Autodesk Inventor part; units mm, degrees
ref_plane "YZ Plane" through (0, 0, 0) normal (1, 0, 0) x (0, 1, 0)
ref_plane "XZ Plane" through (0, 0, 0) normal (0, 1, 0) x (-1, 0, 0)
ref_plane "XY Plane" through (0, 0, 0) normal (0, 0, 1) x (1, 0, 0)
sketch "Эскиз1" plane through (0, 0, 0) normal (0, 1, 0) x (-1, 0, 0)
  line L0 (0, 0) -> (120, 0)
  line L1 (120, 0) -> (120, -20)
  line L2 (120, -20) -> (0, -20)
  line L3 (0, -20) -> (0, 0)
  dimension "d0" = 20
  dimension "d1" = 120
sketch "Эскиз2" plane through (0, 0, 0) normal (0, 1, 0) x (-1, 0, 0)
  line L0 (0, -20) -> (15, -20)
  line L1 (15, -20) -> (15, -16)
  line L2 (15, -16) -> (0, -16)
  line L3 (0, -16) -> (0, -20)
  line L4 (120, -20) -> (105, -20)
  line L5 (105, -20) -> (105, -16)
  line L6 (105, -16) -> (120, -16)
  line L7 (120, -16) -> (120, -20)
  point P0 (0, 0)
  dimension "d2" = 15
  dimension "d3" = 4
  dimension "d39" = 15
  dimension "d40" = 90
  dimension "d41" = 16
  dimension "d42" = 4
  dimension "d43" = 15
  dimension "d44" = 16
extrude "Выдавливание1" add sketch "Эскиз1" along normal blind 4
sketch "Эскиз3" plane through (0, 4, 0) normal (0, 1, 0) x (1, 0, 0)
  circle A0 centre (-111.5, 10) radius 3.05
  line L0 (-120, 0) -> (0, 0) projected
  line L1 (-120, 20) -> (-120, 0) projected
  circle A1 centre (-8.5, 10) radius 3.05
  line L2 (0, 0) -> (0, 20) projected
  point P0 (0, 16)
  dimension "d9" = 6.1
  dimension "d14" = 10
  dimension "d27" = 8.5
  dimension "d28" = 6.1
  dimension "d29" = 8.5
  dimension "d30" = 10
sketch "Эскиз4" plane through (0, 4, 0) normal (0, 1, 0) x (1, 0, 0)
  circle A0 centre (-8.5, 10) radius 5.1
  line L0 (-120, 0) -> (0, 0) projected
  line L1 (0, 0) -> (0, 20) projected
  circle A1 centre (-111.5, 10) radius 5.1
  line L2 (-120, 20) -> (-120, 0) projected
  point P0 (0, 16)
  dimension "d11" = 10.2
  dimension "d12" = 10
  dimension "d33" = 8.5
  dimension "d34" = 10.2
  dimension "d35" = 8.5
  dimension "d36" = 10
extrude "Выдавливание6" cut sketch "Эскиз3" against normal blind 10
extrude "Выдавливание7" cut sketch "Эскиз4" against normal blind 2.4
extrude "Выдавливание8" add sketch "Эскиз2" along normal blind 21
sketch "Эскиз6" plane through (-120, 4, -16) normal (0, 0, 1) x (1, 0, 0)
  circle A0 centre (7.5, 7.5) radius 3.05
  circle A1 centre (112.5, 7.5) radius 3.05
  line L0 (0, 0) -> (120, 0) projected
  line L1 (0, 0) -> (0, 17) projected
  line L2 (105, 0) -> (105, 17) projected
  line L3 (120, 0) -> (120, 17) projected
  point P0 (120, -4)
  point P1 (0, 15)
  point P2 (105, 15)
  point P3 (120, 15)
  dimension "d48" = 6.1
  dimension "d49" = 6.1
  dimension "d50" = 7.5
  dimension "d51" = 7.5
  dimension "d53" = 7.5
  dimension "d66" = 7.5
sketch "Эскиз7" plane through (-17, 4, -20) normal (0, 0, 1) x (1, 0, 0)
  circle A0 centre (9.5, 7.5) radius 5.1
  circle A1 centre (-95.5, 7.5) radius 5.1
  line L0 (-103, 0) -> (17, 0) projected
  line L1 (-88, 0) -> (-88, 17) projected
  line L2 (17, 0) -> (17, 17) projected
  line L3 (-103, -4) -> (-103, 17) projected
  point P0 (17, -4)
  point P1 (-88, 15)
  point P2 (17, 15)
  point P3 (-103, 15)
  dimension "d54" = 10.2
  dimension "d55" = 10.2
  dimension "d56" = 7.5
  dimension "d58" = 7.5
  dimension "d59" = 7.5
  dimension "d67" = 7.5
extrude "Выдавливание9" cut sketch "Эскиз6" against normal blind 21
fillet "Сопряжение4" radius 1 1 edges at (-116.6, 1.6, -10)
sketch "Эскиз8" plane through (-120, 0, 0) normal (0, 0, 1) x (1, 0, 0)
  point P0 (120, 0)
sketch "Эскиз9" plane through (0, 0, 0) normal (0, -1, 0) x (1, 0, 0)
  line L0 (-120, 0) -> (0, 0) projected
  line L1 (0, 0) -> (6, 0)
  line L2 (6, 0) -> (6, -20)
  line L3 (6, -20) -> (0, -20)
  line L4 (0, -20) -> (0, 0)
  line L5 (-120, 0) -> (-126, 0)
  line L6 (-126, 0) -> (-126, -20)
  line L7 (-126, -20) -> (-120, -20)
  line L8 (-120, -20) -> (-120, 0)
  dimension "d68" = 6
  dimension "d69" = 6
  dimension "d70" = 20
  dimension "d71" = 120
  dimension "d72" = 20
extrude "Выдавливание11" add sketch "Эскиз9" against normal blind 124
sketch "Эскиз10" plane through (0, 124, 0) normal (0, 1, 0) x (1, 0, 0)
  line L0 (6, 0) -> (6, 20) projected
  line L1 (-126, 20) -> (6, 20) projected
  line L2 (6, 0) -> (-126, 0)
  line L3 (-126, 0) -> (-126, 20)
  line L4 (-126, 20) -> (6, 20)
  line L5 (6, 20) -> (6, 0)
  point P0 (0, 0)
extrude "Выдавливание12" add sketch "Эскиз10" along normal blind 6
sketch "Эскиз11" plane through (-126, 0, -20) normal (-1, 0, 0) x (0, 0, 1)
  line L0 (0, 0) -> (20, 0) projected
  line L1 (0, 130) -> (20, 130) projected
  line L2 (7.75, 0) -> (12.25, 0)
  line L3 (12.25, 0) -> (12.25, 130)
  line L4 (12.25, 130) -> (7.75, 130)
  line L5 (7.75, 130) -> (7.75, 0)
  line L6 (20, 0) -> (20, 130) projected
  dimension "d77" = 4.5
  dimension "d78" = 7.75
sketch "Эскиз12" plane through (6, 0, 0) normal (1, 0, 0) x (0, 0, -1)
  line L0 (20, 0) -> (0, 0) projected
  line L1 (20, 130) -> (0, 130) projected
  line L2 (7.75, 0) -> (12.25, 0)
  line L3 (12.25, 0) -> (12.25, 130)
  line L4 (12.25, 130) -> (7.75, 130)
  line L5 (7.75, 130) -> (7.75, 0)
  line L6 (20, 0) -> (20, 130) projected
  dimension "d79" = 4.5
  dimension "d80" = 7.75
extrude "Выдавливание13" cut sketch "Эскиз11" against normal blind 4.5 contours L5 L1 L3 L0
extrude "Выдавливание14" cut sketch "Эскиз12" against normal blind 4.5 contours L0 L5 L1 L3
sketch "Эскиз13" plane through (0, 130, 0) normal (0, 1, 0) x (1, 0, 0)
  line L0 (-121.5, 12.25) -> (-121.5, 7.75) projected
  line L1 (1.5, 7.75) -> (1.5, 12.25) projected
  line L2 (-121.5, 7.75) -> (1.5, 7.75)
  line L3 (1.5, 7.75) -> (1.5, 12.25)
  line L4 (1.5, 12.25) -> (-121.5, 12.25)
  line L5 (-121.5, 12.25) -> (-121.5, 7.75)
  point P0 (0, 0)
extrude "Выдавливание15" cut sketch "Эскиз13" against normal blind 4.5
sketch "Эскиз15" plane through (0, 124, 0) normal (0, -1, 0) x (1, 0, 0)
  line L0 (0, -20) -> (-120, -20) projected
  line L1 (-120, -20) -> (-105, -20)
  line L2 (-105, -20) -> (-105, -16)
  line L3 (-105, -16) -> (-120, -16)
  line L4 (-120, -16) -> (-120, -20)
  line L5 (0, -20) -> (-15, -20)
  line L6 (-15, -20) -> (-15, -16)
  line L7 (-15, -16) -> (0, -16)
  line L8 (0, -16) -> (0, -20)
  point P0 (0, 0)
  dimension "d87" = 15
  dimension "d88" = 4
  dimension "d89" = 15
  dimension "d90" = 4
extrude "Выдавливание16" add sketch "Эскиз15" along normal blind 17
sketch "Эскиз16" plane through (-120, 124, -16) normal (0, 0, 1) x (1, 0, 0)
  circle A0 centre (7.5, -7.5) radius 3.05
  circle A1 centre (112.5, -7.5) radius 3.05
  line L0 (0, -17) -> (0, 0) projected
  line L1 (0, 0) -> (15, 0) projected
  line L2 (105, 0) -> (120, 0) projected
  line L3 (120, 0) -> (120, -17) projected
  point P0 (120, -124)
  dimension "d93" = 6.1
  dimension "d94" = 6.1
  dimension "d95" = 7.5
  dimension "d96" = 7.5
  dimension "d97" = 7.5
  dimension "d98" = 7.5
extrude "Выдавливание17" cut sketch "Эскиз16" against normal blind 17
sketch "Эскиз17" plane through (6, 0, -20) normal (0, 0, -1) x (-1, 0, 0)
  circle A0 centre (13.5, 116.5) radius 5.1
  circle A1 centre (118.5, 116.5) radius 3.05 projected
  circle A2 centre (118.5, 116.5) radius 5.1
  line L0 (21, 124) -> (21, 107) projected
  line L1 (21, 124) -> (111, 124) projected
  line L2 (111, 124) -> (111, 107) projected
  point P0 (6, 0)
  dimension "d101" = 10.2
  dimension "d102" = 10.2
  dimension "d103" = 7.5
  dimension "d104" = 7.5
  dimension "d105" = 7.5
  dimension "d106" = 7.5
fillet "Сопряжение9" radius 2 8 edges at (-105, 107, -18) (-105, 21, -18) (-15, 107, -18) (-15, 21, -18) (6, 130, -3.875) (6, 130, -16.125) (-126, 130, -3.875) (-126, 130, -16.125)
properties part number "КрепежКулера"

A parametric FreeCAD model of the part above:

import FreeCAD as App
import Part
import Sketcher

V = App.Vector
Q = App.Units.Quantity


def edges_at(feature, points):
    """Names of the edges that pass closest to the given points."""
    edges = feature.Shape.Edges
    near = lambda p: min(range(len(edges)), key=lambda i: edges[i].distToShape(Part.Vertex(*p))[0])
    return sorted({f"Edge{near(p) + 1}" for p in points})


def add_polygon(sketch, points):
    """Adds a closed chain of lines whose ends are joined by coincident constraints."""
    first, n = sketch.GeometryCount, len(points)
    for a, b in zip(points, points[1:] + points[:1]):
        sketch.addGeometry(Part.LineSegment(App.Vector(*a, 0), App.Vector(*b, 0)), False)
    for i in range(n):
        sketch.addConstraint(Sketcher.Constraint("Coincident", first + i, 2, first + (i + 1) % n, 1))

doc = App.newDocument("Part")
body = doc.addObject("PartDesign::Body", "Body")

# Sketch on XZ plane
sketch1 = doc.addObject("Sketcher::SketchObject", "Sketch")
body.addObject(sketch1)
sketch1.AttachmentSupport = (doc.XZ_Plane, [""])
sketch1.MapMode = "FlatFace"
add_polygon(sketch1, [(-120, 0), (0, 0), (0, -20), (-120, -20)])  # lines 0-3
sketch1.addConstraint([
    Sketcher.Constraint("Horizontal", 0),
    Sketcher.Constraint("Vertical", 1),
    Sketcher.Constraint("Horizontal", 2),
    Sketcher.Constraint("Vertical", 3),
    Sketcher.Constraint("Coincident", 0, 2, -1, 1),
    Sketcher.Constraint("DistanceX", 0, 1, 0, 2, Q("120 mm")),
    Sketcher.Constraint("DistanceY", 1, 2, 1, 1, Q("20 mm")),
])
pad1 = doc.addObject("PartDesign::Pad", "Pad")
body.addObject(pad1)
pad1.Profile = sketch1
pad1.Length = 4
pad1.Reversed = True

# Sketch on XZ plane
sketch2 = doc.addObject("Sketcher::SketchObject", "Sketch001")
body.addObject(sketch2)
sketch2.AttachmentSupport = (doc.XZ_Plane, [""])
sketch2.MapMode = "FlatFace"
sketch2.AttachmentOffset = App.Placement(V(0, 0, -4), App.Rotation())
sketch2.addGeometry([
    Part.Circle(V(-111.5, -10, 0), V(0, 0, 1), 3.05),
    Part.Circle(V(-8.5, -10, 0), V(0, 0, 1), 3.05),
], False)
sketch2.addConstraint([
    Sketcher.Constraint("Equal", 0, 1),
    Sketcher.Constraint("Horizontal", 0, 3, 1, 3),
    Sketcher.Constraint("Diameter", 0, Q("6.1 mm")),
    Sketcher.Constraint("DistanceY", 0, 3, -1, 1, Q("10 mm")),
    Sketcher.Constraint("DistanceX", 1, 3, -1, 1, Q("8.5 mm")),
    Sketcher.Constraint("DistanceX", 0, 3, 1, 3, Q("103 mm")),
])
pocket1 = doc.addObject("PartDesign::Pocket", "Pocket")
body.addObject(pocket1)
pocket1.Profile = sketch2
pocket1.Length = 10
pocket1.Reversed = True

# Sketch on XZ plane
sketch3 = doc.addObject("Sketcher::SketchObject", "Sketch002")
body.addObject(sketch3)
sketch3.AttachmentSupport = (doc.XZ_Plane, [""])
sketch3.MapMode = "FlatFace"
sketch3.AttachmentOffset = App.Placement(V(0, 0, -4), App.Rotation())
sketch3.addGeometry([
    Part.Circle(V(-8.5, -10, 0), V(0, 0, 1), 5.1),
    Part.Circle(V(-111.5, -10, 0), V(0, 0, 1), 5.1),
], False)
sketch3.addConstraint([
    Sketcher.Constraint("Equal", 0, 1),
    Sketcher.Constraint("Horizontal", 0, 3, 1, 3),
    Sketcher.Constraint("Diameter", 0, Q("10.2 mm")),
    Sketcher.Constraint("DistanceY", 0, 3, -1, 1, Q("10 mm")),
    Sketcher.Constraint("DistanceX", 0, 3, -1, 1, Q("8.5 mm")),
    Sketcher.Constraint("DistanceX", 1, 3, 0, 3, Q("103 mm")),
])
pocket2 = doc.addObject("PartDesign::Pocket", "Pocket001")
body.addObject(pocket2)
pocket2.Profile = sketch3
pocket2.Length = 2.4
pocket2.Reversed = True

# Sketch on XZ plane
sketch4 = doc.addObject("Sketcher::SketchObject", "Sketch003")
body.addObject(sketch4)
sketch4.AttachmentSupport = (doc.XZ_Plane, [""])
sketch4.MapMode = "FlatFace"
add_polygon(sketch4, [(0, -16), (0, -20), (-15, -20), (-15, -16)])  # lines 0-3
add_polygon(sketch4, [(-105, -20), (-120, -20), (-120, -16), (-105, -16)])  # lines 4-7
sketch4.addConstraint([
    Sketcher.Constraint("Vertical", 0),
    Sketcher.Constraint("Horizontal", 1),
    Sketcher.Constraint("Vertical", 2),
    Sketcher.Constraint("Horizontal", 3),
    Sketcher.Constraint("Horizontal", 4),
    Sketcher.Constraint("Vertical", 5),
    Sketcher.Constraint("Horizontal", 6),
    Sketcher.Constraint("Vertical", 7),
    Sketcher.Constraint("PointOnObject", 0, 2, -2),
    Sketcher.Constraint("Horizontal", 1, 2, 4, 2),
    Sketcher.Constraint("Horizontal", 3, 2, 5, 2),
    Sketcher.Constraint("Equal", 3, 4),
    Sketcher.Constraint("DistanceX", 1, 2, 1, 1, Q("15 mm")),
    Sketcher.Constraint("DistanceY", 0, 2, 0, 1, Q("4 mm")),
    Sketcher.Constraint("DistanceY", 2, 2, -1, 1, Q("16 mm")),
    Sketcher.Constraint("DistanceX", 6, 2, 2, 2, Q("90 mm")),
])
pad2 = doc.addObject("PartDesign::Pad", "Pad001")
body.addObject(pad2)
pad2.Profile = sketch4
pad2.Length = 21
pad2.Reversed = True

# Sketch on XY plane
sketch5 = doc.addObject("Sketcher::SketchObject", "Sketch004")
body.addObject(sketch5)
sketch5.AttachmentSupport = (doc.XY_Plane, [""])
sketch5.MapMode = "FlatFace"
sketch5.AttachmentOffset = App.Placement(V(0, 0, -16), App.Rotation())
sketch5.addGeometry([
    Part.Circle(V(-112.5, 11.5, 0), V(0, 0, 1), 3.05),
    Part.Circle(V(-7.5, 11.5, 0), V(0, 0, 1), 3.05),
], False)
sketch5.addConstraint([
    Sketcher.Constraint("Equal", 0, 1),
    Sketcher.Constraint("Horizontal", 0, 3, 1, 3),
    Sketcher.Constraint("Diameter", 0, Q("6.1 mm")),
    Sketcher.Constraint("DistanceX", 1, 3, -1, 1, Q("7.5 mm")),
    Sketcher.Constraint("DistanceX", 0, 3, 1, 3, Q("105 mm")),
    Sketcher.Constraint("DistanceY", -1, 1, 0, 3, Q("11.5 mm")),
])
pocket3 = doc.addObject("PartDesign::Pocket", "Pocket002")
body.addObject(pocket3)
pocket3.Profile = sketch5
pocket3.Length = 21
doc.recompute()

fillet = doc.addObject("PartDesign::Fillet", "Fillet")
body.addObject(fillet)
fillet.Base = (pocket3, edges_at(pocket3, [(-116.6, 1.6, -10)]))
fillet.Radius = 1

# Sketch on XZ plane
sketch6 = doc.addObject("Sketcher::SketchObject", "Sketch005")
body.addObject(sketch6)
sketch6.AttachmentSupport = (doc.XZ_Plane, [""])
sketch6.MapMode = "FlatFace"
add_polygon(sketch6, [(6, 0), (0, 0), (0, -20), (6, -20)])  # lines 0-3
add_polygon(sketch6, [(-120, -20), (-120, 0), (-126, 0), (-126, -20)])  # lines 4-7
sketch6.addConstraint([
    Sketcher.Constraint("Horizontal", 0),
    Sketcher.Constraint("Vertical", 1),
    Sketcher.Constraint("Horizontal", 2),
    Sketcher.Constraint("Vertical", 3),
    Sketcher.Constraint("Vertical", 4),
    Sketcher.Constraint("Horizontal", 5),
    Sketcher.Constraint("Vertical", 6),
    Sketcher.Constraint("Horizontal", 7),
    Sketcher.Constraint("Coincident", 0, 2, -1, 1),
    Sketcher.Constraint("PointOnObject", 4, 2, -1),
    Sketcher.Constraint("Horizontal", 2, 2, 6, 2),
    Sketcher.Constraint("Equal", 2, 5),
    Sketcher.Constraint("DistanceX", 0, 2, 0, 1, Q("6 mm")),
    Sketcher.Constraint("DistanceY", 1, 2, 1, 1, Q("20 mm")),
    Sketcher.Constraint("DistanceX", 4, 2, -1, 1, Q("120 mm")),
])
pad3 = doc.addObject("PartDesign::Pad", "Pad002")
body.addObject(pad3)
pad3.Profile = sketch6
pad3.Length = 124
pad3.Reversed = True

# Sketch on XZ plane
sketch7 = doc.addObject("Sketcher::SketchObject", "Sketch006")
body.addObject(sketch7)
sketch7.AttachmentSupport = (doc.XZ_Plane, [""])
sketch7.MapMode = "FlatFace"
sketch7.AttachmentOffset = App.Placement(V(0, 0, -124), App.Rotation())
add_polygon(sketch7, [(-126, 0), (6, 0), (6, -20), (-126, -20)])  # lines 0-3
sketch7.addConstraint([
    Sketcher.Constraint("Horizontal", 0),
    Sketcher.Constraint("Vertical", 1),
    Sketcher.Constraint("Horizontal", 2),
    Sketcher.Constraint("Vertical", 3),
    Sketcher.Constraint("PointOnObject", 0, 2, -1),
    Sketcher.Constraint("DistanceX", 0, 1, 0, 2, Q("132 mm")),
    Sketcher.Constraint("DistanceY", 1, 2, 1, 1, Q("20 mm")),
    Sketcher.Constraint("DistanceX", -1, 1, 0, 2, Q("6 mm")),
])
pad4 = doc.addObject("PartDesign::Pad", "Pad003")
body.addObject(pad4)
pad4.Profile = sketch7
pad4.Length = 6
pad4.Reversed = True

# Sketch on YZ plane
sketch8 = doc.addObject("Sketcher::SketchObject", "Sketch007")
body.addObject(sketch8)
sketch8.AttachmentSupport = (doc.YZ_Plane, [""])
sketch8.MapMode = "FlatFace"
sketch8.AttachmentOffset = App.Placement(V(0, 0, -126), App.Rotation())
add_polygon(sketch8, [(130, -12.25), (0, -12.25), (0, -7.75), (130, -7.75)])  # lines 0-3
sketch8.addConstraint([
    Sketcher.Constraint("Horizontal", 0),
    Sketcher.Constraint("Vertical", 1),
    Sketcher.Constraint("Horizontal", 2),
    Sketcher.Constraint("Vertical", 3),
    Sketcher.Constraint("PointOnObject", 0, 2, -2),
    Sketcher.Constraint("DistanceY", 1, 1, 1, 2, Q("4.5 mm")),
    Sketcher.Constraint("DistanceX", 0, 2, 0, 1, Q("130 mm")),
    Sketcher.Constraint("DistanceY", 1, 2, -1, 1, Q("7.75 mm")),
])
pocket4 = doc.addObject("PartDesign::Pocket", "Pocket003")
body.addObject(pocket4)
pocket4.Profile = sketch8
pocket4.Length = 4.5
pocket4.Reversed = True

# Sketch on YZ plane
sketch9 = doc.addObject("Sketcher::SketchObject", "Sketch008")
body.addObject(sketch9)
sketch9.AttachmentSupport = (doc.YZ_Plane, [""])
sketch9.MapMode = "FlatFace"
sketch9.AttachmentOffset = App.Placement(V(0, 0, 6), App.Rotation())
add_polygon(sketch9, [(0, -7.75), (0, -12.25), (130, -12.25), (130, -7.75)])  # lines 0-3
sketch9.addConstraint([
    Sketcher.Constraint("Vertical", 0),
    Sketcher.Constraint("Horizontal", 1),
    Sketcher.Constraint("Vertical", 2),
    Sketcher.Constraint("Horizontal", 3),
    Sketcher.Constraint("PointOnObject", 0, 2, -2),
    Sketcher.Constraint("DistanceY", 0, 2, 0, 1, Q("4.5 mm")),
    Sketcher.Constraint("DistanceX", 1, 1, 1, 2, Q("130 mm")),
    Sketcher.Constraint("DistanceY", 2, 2, -1, 1, Q("7.75 mm")),
])
pocket5 = doc.addObject("PartDesign::Pocket", "Pocket004")
body.addObject(pocket5)
pocket5.Profile = sketch9
pocket5.Length = 4.5

# Sketch on XZ plane
sketch10 = doc.addObject("Sketcher::SketchObject", "Sketch009")
body.addObject(sketch10)
sketch10.AttachmentSupport = (doc.XZ_Plane, [""])
sketch10.MapMode = "FlatFace"
sketch10.AttachmentOffset = App.Placement(V(0, 0, -130), App.Rotation())
add_polygon(sketch10, [(1.5, -12.25), (-121.5, -12.25), (-121.5, -7.75), (1.5, -7.75)])  # lines 0-3
sketch10.addConstraint([
    Sketcher.Constraint("Horizontal", 0),
    Sketcher.Constraint("Vertical", 1),
    Sketcher.Constraint("Horizontal", 2),
    Sketcher.Constraint("Vertical", 3),
    Sketcher.Constraint("DistanceX", 0, 2, 0, 1, Q("123 mm")),
    Sketcher.Constraint("DistanceY", 1, 1, 1, 2, Q("4.5 mm")),
    Sketcher.Constraint("DistanceX", 0, 2, -1, 1, Q("121.5 mm")),
    Sketcher.Constraint("DistanceY", 0, 2, -1, 1, Q("12.25 mm")),
])
pocket6 = doc.addObject("PartDesign::Pocket", "Pocket005")
body.addObject(pocket6)
pocket6.Profile = sketch10
pocket6.Length = 4.5
pocket6.Reversed = True

# Sketch on XZ plane
sketch11 = doc.addObject("Sketcher::SketchObject", "Sketch010")
body.addObject(sketch11)
sketch11.AttachmentSupport = (doc.XZ_Plane, [""])
sketch11.MapMode = "FlatFace"
sketch11.AttachmentOffset = App.Placement(V(0, 0, -124), App.Rotation())
add_polygon(sketch11, [(-120, -20), (-105, -20), (-105, -16), (-120, -16)])  # lines 0-3
add_polygon(sketch11, [(-15, -20), (0, -20), (0, -16), (-15, -16)])  # lines 4-7
sketch11.addConstraint([
    Sketcher.Constraint("Horizontal", 0),
    Sketcher.Constraint("Vertical", 1),
    Sketcher.Constraint("Horizontal", 2),
    Sketcher.Constraint("Vertical", 3),
    Sketcher.Constraint("Horizontal", 4),
    Sketcher.Constraint("Vertical", 5),
    Sketcher.Constraint("Horizontal", 6),
    Sketcher.Constraint("Vertical", 7),
    Sketcher.Constraint("PointOnObject", 4, 2, -2),
    Sketcher.Constraint("Horizontal", 3, 2, 4, 2),
    Sketcher.Constraint("Horizontal", 2, 2, 5, 2),
    Sketcher.Constraint("Equal", 2, 4),
    Sketcher.Constraint("DistanceX", 0, 1, 0, 2, Q("15 mm")),
    Sketcher.Constraint("DistanceY", 1, 1, 1, 2, Q("4 mm")),
    Sketcher.Constraint("DistanceX", 0, 2, -1, 1, Q("105 mm")),
    Sketcher.Constraint("DistanceY", 0, 2, -1, 1, Q("20 mm")),
])
pad5 = doc.addObject("PartDesign::Pad", "Pad004")
body.addObject(pad5)
pad5.Profile = sketch11
pad5.Length = 17

# Sketch on XY plane
sketch12 = doc.addObject("Sketcher::SketchObject", "Sketch011")
body.addObject(sketch12)
sketch12.AttachmentSupport = (doc.XY_Plane, [""])
sketch12.MapMode = "FlatFace"
sketch12.AttachmentOffset = App.Placement(V(0, 0, -16), App.Rotation())
sketch12.addGeometry([
    Part.Circle(V(-112.5, 116.5, 0), V(0, 0, 1), 3.05),
    Part.Circle(V(-7.5, 116.5, 0), V(0, 0, 1), 3.05),
], False)
sketch12.addConstraint([
    Sketcher.Constraint("Equal", 0, 1),
    Sketcher.Constraint("Horizontal", 0, 3, 1, 3),
    Sketcher.Constraint("Diameter", 0, Q("6.1 mm")),
    Sketcher.Constraint("DistanceX", 1, 3, -1, 1, Q("7.5 mm")),
    Sketcher.Constraint("DistanceX", 0, 3, 1, 3, Q("105 mm")),
    Sketcher.Constraint("DistanceY", -1, 1, 0, 3, Q("116.5 mm")),
])
pocket7 = doc.addObject("PartDesign::Pocket", "Pocket006")
body.addObject(pocket7)
pocket7.Profile = sketch12
pocket7.Length = 17
doc.recompute()

fillet2 = doc.addObject("PartDesign::Fillet", "Fillet001")
body.addObject(fillet2)
fillet2.Base = (pocket7, edges_at(pocket7, [
    (-105, 107, -18),
    (-105, 21, -18),
    (-15, 107, -18),
    (-15, 21, -18),
    (6, 130, -3.875),
    (6, 130, -16.125),
    (-126, 130, -3.875),
    (-126, 130, -16.125),
]))
fillet2.Radius = 2

doc.recompute()
